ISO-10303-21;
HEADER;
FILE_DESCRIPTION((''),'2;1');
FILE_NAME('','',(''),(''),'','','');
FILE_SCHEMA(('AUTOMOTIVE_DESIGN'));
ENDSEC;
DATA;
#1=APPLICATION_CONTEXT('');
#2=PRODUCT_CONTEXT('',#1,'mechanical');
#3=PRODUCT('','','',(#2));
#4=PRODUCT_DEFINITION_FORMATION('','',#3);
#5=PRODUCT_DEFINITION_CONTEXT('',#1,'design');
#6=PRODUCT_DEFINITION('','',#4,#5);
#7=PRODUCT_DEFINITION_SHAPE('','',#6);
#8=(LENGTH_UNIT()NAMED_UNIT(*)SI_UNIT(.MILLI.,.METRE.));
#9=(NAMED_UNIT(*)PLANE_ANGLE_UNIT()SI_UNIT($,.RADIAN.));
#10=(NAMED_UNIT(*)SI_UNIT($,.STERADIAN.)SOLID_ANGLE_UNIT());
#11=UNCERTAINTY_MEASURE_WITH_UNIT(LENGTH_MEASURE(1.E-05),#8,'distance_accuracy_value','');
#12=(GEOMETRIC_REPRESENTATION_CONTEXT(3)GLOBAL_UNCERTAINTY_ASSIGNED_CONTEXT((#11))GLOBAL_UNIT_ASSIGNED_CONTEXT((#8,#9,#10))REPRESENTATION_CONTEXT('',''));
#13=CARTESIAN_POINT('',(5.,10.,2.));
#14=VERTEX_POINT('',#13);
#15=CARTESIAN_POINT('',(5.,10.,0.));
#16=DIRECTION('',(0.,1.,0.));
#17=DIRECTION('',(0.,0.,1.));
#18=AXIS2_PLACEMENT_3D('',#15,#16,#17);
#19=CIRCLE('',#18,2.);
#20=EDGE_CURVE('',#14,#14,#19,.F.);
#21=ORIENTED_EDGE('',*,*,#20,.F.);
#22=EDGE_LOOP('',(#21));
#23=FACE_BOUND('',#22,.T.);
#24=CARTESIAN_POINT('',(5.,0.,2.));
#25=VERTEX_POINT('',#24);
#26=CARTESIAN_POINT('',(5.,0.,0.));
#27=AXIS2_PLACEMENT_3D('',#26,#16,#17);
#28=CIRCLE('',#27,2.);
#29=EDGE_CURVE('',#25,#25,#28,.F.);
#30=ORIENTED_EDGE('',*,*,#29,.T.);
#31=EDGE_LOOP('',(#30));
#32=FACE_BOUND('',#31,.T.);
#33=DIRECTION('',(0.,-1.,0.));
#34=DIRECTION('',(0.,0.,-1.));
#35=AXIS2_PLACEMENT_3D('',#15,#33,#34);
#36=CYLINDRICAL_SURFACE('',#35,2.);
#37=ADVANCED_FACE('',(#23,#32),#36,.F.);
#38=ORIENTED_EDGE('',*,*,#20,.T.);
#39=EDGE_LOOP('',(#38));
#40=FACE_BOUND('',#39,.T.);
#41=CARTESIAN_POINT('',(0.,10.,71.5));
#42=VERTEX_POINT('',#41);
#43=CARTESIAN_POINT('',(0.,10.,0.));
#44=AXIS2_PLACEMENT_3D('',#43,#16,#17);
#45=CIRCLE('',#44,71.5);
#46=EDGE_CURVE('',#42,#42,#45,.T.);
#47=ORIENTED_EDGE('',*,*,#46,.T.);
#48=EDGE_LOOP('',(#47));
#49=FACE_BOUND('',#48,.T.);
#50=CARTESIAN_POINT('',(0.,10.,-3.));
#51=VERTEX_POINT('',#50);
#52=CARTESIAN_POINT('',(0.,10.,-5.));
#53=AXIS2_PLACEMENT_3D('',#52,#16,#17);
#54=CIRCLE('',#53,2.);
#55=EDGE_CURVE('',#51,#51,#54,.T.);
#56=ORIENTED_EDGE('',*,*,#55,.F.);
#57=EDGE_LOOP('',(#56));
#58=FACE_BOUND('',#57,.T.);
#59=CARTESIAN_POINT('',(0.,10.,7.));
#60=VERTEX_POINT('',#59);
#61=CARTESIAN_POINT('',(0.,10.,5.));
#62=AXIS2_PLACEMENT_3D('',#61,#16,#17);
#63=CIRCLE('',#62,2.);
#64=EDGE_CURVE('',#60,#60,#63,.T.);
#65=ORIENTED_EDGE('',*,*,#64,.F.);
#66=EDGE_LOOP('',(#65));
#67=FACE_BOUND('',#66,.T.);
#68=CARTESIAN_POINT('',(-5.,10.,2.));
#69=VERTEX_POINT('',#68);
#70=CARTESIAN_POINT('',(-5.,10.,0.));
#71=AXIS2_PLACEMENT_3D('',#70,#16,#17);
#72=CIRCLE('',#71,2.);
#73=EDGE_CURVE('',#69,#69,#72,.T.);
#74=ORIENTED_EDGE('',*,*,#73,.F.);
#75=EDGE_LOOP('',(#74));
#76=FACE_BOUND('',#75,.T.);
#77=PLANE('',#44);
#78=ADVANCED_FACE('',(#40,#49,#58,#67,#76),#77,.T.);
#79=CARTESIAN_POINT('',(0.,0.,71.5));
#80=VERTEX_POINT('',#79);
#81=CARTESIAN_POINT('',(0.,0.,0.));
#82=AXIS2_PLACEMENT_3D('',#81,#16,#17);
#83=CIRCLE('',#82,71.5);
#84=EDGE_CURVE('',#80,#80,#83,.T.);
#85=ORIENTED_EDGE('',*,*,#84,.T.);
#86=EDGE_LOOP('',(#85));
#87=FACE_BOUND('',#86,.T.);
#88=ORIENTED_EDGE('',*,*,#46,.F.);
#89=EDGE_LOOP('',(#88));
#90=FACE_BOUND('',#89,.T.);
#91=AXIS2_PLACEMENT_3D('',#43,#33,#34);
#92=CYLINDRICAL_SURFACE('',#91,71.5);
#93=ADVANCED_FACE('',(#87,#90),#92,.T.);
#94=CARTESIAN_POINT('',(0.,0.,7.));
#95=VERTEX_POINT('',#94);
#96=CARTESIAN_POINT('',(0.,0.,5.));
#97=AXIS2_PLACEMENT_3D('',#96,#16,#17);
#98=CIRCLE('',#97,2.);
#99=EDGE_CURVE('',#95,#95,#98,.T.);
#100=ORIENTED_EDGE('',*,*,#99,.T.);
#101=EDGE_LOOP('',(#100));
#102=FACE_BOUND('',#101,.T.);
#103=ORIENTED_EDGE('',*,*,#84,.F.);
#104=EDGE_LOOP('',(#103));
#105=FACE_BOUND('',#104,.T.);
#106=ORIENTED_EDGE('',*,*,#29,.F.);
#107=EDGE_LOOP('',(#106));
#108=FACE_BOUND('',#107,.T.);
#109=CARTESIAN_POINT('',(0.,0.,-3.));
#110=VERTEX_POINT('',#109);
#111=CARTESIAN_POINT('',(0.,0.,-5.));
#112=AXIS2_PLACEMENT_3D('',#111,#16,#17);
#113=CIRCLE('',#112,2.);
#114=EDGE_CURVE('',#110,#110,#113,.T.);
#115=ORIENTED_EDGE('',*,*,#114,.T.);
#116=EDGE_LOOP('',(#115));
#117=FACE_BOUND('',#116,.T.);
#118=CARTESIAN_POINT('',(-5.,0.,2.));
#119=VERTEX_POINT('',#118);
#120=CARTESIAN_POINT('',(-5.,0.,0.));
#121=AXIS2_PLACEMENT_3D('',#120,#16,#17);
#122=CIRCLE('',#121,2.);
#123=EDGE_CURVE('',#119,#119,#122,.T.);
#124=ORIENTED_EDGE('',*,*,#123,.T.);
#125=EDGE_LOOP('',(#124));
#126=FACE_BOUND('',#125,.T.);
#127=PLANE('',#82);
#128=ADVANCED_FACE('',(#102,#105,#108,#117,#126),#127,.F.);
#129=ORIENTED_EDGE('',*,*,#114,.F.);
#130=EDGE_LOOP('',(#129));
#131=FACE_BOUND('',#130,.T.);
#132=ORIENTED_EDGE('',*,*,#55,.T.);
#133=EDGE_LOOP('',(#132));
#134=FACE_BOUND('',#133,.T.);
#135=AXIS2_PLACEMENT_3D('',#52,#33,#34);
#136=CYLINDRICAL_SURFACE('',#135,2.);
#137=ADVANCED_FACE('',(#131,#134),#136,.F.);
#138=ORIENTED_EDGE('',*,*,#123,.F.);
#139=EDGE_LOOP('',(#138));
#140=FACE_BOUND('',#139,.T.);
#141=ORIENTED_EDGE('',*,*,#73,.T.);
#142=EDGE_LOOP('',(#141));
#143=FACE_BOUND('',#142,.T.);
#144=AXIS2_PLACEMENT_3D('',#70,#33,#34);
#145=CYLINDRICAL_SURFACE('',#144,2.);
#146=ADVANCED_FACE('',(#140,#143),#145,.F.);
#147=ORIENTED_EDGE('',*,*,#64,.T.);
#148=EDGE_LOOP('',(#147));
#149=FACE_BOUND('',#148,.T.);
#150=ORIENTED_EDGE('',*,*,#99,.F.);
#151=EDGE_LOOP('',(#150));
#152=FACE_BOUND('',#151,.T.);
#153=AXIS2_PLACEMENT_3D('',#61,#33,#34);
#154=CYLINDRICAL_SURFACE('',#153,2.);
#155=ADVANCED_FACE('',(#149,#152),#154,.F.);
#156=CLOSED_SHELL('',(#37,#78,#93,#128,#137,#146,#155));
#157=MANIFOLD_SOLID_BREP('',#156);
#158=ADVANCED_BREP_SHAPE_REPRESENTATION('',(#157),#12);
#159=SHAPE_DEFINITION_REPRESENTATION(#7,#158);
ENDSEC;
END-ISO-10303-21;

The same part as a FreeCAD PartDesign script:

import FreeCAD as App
import Part
import Sketcher
Q = App.Units.Quantity

doc = App.newDocument("Part")
body = doc.addObject("PartDesign::Body", "Body")

# Sketch on XZ plane
sketch1 = doc.addObject("Sketcher::SketchObject", "Sketch")
body.addObject(sketch1)
sketch1.AttachmentSupport = (doc.XZ_Plane, [""])
sketch1.MapMode = "FlatFace"
sketch1.addGeometry([
    Part.Circle(App.Vector(0, 0, 0), App.Vector(0, 0, 1), 71.5),  # 0
    Part.Circle(App.Vector(0, -5, 0), App.Vector(0, 0, 1), 2),  # 1
    Part.Circle(App.Vector(-5, 0, 0), App.Vector(0, 0, 1), 2),  # 2
    Part.Circle(App.Vector(5, 0, 0), App.Vector(0, 0, 1), 2),  # 3
    Part.Circle(App.Vector(0, 5, 0), App.Vector(0, 0, 1), 2),  # 4
], False)
sketch1.addConstraint([
    Sketcher.Constraint("Coincident", 0, 3, -1, 1),
    Sketcher.Constraint("Equal", 1, 2),
    Sketcher.Constraint("Equal", 2, 3),
    Sketcher.Constraint("Equal", 3, 4),
    Sketcher.Constraint("Symmetric", 2, 3, 3, 3, -1, 1),
    Sketcher.Constraint("Symmetric", 1, 3, 4, 3, -1, 1),
    Sketcher.Constraint("PointOnObject", 1, 3, -2),
    Sketcher.Constraint("PointOnObject", 2, 3, -1),
    Sketcher.Constraint("Diameter", 0, Q("143 mm")),
    Sketcher.Constraint("Diameter", 1, Q("4 mm")),
    Sketcher.Constraint("DistanceY", 1, 3, -1, 1, Q("5 mm")),
    Sketcher.Constraint("DistanceX", 2, 3, -1, 1, Q("5 mm")),
])
pad1 = doc.addObject("PartDesign::Pad", "Pad")
body.addObject(pad1)
pad1.Profile = sketch1
pad1.Length = 10
pad1.Reversed = True

doc.recompute()
